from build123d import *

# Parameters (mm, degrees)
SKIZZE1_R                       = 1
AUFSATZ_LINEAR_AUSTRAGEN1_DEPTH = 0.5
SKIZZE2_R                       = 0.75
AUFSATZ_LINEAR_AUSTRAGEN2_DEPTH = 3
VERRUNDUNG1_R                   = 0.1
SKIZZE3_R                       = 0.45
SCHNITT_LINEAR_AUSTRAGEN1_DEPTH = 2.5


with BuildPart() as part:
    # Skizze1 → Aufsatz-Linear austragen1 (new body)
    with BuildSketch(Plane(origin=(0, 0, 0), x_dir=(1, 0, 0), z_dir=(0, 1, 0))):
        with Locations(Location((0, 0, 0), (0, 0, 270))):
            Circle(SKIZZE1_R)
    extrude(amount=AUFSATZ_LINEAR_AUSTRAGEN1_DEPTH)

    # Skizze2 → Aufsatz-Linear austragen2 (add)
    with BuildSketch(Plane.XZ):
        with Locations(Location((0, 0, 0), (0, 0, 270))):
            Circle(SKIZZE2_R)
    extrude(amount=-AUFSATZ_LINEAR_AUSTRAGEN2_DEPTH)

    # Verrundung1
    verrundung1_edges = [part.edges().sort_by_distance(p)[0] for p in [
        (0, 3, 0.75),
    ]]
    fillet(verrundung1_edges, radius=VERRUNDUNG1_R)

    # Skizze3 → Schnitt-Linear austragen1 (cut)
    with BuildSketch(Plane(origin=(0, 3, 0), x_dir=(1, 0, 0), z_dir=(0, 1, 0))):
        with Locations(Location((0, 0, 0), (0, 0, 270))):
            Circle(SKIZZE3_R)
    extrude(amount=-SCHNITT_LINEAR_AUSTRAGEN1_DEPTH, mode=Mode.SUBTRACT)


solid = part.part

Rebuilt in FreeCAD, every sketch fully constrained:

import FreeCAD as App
import Part
import Sketcher
from FreeCAD import Vector
Q = App.Units.Quantity


def edges_at(feature, points):
    """Names of the edges that pass closest to the given points."""
    edges = feature.Shape.Edges
    near = lambda p: min(range(len(edges)), key=lambda i: edges[i].distToShape(Part.Vertex(*p))[0])
    return sorted({f"Edge{near(p) + 1}" for p in points})

doc = App.newDocument("Part")
body = doc.addObject("PartDesign::Body", "Body")

sketch1 = body.newObject("Sketcher::SketchObject", "Sketch")
sketch1.AttachmentSupport = (doc.getObject("XZ_Plane"), [""])
sketch1.MapMode = "FlatFace"
sketch1.addGeometry(Part.Circle(Vector(0, 0, 0), Vector(0, 0, 1), 1), False)
sketch1.addConstraint([
    Sketcher.Constraint("Coincident", 0, 3, -1, 1),
    Sketcher.Constraint("Diameter", 0, Q("2 mm")),
])
pad1 = body.newObject("PartDesign::Pad", "Pad")
pad1.Profile = sketch1
pad1.Length = 0.5
pad1.Reversed = True

sketch2 = body.newObject("Sketcher::SketchObject", "Sketch001")
sketch2.AttachmentSupport = (doc.getObject("XZ_Plane"), [""])
sketch2.MapMode = "FlatFace"
sketch2.addGeometry(Part.Circle(Vector(0, 0, 0), Vector(0, 0, 1), 0.8), False)
sketch2.addConstraint([
    Sketcher.Constraint("Coincident", 0, 3, -1, 1),
    Sketcher.Constraint("Diameter", 0, Q("1.5 mm")),
])
pad2 = body.newObject("PartDesign::Pad", "Pad001")
pad2.Profile = sketch2
pad2.Length = 3
pad2.Reversed = True
doc.recompute()

fillet = body.newObject("PartDesign::Fillet", "Fillet")
fillet.Base = (pad2, edges_at(pad2, [(0, 3, 0.75)]))
fillet.Radius = 0.1

sketch3 = body.newObject("Sketcher::SketchObject", "Sketch002")
sketch3.AttachmentSupport = (doc.getObject("XZ_Plane"), [""])
sketch3.MapMode = "FlatFace"
sketch3.AttachmentOffset = App.Placement(Vector(0, 0, -3), App.Rotation())
sketch3.addGeometry(Part.Circle(Vector(0, 0, 0), Vector(0, 0, 1), 0.45), False)
sketch3.addConstraint([
    Sketcher.Constraint("Coincident", 0, 3, -1, 1),
    Sketcher.Constraint("Diameter", 0, Q("0.9 mm")),
])
pocket1 = body.newObject("PartDesign::Pocket", "Pocket")
pocket1.Profile = sketch3
pocket1.Length = 2.5
pocket1.Reversed = True

doc.recompute()
